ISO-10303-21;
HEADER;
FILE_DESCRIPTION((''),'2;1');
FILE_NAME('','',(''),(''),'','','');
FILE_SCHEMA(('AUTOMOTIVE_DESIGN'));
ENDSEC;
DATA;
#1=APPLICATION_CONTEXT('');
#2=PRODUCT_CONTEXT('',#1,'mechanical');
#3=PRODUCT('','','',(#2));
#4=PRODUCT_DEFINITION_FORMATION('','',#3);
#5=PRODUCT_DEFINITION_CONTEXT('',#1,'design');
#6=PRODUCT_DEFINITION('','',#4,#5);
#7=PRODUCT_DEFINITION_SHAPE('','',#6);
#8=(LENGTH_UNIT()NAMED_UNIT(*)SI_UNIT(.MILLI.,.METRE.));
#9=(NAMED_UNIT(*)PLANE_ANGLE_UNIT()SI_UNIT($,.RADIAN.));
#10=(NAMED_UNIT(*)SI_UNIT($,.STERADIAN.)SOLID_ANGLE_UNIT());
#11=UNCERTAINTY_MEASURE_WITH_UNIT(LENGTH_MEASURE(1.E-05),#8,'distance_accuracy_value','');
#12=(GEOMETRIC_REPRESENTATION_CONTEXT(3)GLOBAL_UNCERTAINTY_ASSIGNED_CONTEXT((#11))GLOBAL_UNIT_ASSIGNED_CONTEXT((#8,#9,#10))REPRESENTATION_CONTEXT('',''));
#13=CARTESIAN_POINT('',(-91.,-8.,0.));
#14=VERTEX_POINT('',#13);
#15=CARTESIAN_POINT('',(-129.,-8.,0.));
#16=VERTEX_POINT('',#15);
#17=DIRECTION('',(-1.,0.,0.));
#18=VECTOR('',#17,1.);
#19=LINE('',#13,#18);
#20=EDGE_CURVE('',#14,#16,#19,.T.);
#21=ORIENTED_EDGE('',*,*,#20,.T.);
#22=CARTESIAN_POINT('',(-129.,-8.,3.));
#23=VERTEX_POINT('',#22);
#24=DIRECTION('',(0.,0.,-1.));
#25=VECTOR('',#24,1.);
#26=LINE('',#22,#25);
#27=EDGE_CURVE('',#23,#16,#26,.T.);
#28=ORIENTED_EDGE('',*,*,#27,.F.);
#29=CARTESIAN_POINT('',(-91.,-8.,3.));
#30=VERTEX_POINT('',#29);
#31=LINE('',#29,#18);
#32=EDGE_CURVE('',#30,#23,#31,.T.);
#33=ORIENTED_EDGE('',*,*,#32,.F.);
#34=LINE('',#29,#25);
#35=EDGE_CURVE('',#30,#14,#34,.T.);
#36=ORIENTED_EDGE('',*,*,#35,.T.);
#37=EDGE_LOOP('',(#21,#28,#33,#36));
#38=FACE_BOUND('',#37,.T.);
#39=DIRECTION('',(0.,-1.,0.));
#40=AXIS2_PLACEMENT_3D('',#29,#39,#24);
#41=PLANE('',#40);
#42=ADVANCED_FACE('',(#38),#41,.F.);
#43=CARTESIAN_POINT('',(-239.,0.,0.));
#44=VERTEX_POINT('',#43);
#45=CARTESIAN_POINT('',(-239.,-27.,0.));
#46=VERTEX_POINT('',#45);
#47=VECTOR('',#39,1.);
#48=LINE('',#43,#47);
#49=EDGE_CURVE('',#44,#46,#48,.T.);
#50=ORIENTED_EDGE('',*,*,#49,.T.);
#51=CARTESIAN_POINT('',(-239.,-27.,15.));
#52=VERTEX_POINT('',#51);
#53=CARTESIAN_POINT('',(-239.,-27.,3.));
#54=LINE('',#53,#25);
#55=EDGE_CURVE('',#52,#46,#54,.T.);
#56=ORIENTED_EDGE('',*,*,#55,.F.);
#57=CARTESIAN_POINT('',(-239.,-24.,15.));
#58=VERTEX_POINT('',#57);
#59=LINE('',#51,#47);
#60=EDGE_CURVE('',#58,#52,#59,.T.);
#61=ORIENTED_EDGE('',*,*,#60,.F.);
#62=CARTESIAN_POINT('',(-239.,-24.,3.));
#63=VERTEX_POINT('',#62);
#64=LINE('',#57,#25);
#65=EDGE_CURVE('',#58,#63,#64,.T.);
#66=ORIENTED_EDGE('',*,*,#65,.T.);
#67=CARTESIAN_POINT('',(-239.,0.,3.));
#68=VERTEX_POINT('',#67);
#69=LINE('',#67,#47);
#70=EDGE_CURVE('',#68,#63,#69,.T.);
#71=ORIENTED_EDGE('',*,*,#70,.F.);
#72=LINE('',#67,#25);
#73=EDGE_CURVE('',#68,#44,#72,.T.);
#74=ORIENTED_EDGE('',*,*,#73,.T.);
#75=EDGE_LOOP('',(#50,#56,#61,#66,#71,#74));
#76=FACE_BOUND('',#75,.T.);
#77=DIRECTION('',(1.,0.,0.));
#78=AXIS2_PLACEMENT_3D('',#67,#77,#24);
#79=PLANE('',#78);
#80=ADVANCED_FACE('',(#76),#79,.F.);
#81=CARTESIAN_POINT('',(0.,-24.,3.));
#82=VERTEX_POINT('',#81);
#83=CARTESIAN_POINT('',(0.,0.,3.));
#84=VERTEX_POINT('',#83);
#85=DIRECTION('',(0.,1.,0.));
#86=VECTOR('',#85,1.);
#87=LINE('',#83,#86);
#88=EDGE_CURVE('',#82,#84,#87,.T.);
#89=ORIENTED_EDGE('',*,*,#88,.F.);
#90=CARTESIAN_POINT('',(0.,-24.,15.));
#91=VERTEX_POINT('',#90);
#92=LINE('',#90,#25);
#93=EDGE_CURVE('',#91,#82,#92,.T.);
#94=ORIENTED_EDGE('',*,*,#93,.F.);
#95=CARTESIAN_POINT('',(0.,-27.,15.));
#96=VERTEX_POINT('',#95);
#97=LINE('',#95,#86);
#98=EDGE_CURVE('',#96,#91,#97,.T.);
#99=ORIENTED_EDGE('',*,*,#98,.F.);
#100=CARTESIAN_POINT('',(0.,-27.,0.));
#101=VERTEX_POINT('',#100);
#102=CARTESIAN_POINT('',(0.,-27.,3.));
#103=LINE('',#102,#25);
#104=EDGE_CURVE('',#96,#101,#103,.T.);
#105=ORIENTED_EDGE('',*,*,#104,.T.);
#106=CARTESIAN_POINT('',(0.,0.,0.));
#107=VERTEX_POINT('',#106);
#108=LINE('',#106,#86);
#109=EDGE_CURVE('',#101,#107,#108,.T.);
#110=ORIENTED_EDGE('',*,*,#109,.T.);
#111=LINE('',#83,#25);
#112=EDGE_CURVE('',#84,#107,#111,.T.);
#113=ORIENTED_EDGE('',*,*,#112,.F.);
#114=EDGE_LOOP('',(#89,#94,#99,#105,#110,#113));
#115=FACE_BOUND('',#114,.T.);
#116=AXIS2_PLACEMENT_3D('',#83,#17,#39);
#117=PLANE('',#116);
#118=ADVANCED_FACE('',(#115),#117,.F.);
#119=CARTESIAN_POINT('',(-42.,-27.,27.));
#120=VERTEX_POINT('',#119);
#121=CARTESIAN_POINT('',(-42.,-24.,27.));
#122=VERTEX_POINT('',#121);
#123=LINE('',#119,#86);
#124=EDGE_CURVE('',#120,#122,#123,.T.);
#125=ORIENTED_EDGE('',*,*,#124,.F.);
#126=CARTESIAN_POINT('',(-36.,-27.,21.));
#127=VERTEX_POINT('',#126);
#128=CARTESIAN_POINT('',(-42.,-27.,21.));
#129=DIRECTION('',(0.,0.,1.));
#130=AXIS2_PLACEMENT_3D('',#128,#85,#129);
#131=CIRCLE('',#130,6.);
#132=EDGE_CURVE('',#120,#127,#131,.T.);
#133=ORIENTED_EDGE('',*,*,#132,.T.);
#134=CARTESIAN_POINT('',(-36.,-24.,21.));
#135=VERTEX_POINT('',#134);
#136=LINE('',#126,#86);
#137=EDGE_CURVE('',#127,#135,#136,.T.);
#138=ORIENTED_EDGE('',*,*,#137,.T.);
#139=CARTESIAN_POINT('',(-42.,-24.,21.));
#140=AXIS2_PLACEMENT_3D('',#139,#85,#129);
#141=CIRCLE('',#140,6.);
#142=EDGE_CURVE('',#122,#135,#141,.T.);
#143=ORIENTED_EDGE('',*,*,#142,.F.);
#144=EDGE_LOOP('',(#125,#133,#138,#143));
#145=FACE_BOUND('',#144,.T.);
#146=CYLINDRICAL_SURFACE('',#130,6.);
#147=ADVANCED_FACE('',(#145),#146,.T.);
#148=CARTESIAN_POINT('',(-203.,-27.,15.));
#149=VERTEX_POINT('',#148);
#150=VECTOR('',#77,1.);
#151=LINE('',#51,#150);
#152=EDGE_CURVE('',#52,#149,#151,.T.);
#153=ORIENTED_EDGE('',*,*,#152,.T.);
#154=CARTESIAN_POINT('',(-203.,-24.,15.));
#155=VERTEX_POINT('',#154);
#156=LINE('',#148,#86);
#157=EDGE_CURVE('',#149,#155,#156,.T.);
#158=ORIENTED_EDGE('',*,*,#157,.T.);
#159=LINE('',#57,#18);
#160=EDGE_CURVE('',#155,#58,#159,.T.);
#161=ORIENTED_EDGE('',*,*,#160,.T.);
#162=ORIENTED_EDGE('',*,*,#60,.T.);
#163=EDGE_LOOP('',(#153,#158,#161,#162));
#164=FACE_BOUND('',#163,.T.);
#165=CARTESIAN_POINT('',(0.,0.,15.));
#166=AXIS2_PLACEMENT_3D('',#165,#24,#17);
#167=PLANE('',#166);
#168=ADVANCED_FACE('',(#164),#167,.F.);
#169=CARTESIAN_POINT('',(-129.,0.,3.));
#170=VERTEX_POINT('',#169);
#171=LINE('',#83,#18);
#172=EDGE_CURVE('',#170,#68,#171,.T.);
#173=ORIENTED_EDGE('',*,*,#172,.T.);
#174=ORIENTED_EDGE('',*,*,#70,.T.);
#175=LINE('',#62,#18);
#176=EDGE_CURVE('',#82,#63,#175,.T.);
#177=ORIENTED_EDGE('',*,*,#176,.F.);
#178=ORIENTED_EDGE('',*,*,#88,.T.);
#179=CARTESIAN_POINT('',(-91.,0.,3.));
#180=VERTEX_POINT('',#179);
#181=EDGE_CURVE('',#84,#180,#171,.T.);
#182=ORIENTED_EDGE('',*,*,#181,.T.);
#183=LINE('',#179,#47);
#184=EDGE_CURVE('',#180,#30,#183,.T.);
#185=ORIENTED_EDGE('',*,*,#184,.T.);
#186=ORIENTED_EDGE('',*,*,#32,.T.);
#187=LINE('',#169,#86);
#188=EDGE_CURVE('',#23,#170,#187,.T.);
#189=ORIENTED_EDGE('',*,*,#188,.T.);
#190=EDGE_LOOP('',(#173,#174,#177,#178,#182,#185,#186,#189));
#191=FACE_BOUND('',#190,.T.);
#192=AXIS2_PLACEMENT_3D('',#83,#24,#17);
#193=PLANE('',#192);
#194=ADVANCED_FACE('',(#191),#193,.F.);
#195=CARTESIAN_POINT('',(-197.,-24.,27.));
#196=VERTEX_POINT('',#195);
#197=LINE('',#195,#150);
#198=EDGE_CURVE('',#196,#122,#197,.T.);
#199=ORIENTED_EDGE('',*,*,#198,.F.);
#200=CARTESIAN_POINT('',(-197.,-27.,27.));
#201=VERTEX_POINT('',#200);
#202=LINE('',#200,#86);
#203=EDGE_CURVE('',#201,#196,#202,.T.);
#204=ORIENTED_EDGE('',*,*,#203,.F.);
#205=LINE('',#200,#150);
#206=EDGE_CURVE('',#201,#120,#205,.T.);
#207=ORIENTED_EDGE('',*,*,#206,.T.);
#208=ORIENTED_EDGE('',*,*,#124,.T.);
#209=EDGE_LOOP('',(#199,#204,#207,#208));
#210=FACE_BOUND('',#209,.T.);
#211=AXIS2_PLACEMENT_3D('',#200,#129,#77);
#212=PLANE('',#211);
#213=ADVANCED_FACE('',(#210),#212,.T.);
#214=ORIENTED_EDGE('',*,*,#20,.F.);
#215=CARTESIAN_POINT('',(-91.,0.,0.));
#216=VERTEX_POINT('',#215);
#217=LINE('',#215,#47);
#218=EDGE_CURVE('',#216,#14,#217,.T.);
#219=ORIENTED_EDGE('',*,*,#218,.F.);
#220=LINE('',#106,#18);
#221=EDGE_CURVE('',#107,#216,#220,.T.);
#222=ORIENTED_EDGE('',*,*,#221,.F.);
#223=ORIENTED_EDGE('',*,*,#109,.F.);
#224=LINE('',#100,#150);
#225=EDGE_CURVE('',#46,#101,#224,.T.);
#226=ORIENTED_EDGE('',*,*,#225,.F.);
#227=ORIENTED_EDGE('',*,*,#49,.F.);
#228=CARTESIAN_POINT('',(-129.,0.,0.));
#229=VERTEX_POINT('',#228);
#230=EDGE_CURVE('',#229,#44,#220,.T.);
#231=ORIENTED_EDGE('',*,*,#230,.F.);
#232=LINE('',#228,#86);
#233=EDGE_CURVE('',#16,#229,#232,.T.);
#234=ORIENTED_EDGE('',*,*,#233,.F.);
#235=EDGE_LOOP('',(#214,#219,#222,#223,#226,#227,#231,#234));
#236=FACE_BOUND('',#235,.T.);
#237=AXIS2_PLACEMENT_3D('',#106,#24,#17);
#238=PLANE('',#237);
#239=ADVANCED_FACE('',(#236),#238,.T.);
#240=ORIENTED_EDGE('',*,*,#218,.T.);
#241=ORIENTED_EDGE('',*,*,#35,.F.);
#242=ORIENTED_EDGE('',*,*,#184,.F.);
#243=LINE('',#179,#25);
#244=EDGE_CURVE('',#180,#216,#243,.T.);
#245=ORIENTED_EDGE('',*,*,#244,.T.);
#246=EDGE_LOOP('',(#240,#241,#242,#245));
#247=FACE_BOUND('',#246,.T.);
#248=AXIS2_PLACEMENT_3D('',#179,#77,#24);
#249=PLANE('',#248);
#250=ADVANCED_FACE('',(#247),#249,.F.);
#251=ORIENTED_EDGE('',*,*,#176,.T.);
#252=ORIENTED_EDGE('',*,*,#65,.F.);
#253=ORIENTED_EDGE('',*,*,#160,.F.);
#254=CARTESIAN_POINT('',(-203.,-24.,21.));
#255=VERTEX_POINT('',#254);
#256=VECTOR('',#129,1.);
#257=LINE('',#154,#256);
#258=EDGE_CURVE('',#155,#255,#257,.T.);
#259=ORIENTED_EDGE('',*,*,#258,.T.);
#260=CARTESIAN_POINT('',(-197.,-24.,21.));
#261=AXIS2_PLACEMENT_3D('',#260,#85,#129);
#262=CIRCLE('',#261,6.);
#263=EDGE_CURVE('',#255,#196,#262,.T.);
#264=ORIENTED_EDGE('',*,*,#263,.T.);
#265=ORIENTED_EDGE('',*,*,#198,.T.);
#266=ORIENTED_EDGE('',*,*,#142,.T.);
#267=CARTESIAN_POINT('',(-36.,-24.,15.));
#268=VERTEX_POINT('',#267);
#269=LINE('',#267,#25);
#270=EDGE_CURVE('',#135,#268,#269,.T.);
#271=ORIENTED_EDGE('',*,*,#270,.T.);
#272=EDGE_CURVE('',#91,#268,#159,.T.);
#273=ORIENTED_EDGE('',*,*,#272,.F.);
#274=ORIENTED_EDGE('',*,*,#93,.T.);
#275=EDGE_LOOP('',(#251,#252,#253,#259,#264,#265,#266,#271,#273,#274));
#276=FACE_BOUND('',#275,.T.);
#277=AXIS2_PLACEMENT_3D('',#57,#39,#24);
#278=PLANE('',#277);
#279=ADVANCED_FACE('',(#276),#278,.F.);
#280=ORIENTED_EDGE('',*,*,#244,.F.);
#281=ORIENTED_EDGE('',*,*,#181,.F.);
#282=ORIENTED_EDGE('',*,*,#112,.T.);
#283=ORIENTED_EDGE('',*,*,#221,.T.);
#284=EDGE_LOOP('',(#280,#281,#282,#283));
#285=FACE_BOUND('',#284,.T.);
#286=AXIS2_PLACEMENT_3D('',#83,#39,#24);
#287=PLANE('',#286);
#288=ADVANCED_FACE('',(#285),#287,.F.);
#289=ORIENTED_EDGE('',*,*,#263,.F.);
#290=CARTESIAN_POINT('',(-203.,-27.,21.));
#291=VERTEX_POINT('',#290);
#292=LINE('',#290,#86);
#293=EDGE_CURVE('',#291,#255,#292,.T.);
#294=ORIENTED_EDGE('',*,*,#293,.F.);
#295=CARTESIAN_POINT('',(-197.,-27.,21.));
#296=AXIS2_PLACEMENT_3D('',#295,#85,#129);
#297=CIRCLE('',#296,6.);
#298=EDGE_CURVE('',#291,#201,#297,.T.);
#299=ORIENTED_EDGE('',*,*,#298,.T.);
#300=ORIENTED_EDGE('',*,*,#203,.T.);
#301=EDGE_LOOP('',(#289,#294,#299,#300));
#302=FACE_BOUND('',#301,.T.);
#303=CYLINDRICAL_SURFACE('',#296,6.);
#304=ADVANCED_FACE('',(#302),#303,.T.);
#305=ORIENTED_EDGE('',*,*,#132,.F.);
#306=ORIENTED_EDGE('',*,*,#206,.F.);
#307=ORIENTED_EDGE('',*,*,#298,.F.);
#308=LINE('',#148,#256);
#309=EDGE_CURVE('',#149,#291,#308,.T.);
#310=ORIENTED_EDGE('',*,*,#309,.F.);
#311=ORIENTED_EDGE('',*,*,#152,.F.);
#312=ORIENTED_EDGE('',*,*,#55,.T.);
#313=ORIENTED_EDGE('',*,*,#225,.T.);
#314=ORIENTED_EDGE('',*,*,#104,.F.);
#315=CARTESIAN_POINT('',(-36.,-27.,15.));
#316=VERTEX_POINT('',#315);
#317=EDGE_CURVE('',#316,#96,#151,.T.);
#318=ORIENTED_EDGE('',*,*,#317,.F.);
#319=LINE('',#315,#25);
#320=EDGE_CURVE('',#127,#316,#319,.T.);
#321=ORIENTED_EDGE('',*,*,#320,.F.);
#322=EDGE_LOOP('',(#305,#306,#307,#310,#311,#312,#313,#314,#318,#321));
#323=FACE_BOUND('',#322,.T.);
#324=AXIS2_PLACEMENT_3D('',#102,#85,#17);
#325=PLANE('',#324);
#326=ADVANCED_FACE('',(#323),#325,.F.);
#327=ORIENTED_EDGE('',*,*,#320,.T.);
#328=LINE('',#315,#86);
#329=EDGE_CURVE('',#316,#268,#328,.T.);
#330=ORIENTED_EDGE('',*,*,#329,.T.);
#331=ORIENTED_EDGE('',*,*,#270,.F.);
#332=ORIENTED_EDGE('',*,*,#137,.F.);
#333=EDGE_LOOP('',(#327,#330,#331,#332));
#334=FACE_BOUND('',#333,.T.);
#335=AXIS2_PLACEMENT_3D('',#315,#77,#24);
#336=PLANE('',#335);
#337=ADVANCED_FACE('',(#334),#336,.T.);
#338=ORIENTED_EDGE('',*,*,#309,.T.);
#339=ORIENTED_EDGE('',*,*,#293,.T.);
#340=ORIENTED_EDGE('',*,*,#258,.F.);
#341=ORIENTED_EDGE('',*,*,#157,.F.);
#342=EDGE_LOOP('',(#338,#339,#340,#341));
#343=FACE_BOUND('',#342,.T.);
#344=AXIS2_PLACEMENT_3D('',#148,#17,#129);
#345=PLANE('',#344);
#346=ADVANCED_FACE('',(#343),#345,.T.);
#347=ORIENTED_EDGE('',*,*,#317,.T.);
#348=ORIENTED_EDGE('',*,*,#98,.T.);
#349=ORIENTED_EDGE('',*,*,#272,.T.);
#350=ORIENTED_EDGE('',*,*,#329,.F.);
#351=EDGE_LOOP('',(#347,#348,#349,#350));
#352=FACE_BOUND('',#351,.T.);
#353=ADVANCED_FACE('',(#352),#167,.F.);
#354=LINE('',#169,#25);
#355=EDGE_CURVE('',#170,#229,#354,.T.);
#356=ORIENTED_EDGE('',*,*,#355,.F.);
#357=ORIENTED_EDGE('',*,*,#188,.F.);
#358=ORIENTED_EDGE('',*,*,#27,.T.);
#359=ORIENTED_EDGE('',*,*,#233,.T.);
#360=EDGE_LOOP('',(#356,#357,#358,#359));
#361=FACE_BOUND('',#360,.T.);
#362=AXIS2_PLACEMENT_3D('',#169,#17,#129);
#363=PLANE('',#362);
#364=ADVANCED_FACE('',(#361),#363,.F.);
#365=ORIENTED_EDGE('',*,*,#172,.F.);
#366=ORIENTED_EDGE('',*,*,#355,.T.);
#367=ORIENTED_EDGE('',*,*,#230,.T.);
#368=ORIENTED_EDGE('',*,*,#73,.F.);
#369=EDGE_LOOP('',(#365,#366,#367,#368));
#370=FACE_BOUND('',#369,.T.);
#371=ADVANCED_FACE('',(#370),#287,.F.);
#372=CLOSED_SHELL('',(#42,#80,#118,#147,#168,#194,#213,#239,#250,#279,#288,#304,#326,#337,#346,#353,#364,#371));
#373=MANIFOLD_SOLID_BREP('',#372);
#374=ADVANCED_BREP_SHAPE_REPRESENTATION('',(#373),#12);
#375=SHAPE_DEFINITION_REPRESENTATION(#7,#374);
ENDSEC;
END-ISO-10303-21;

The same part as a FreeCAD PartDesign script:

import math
import FreeCAD as App
import Part
import Sketcher

V = App.Vector
Q = App.Units.Quantity

doc = App.newDocument("Part")
body = doc.addObject("PartDesign::Body", "Body")

sketch1 = doc.addObject("Sketcher::SketchObject", "Sketch")
body.addObject(sketch1)
sketch1.AttachmentSupport = (doc.XY_Plane, [""])
sketch1.MapMode = "FlatFace"
sketch1.addGeometry([
    Part.LineSegment(V(-239, 0, 0), V(-239, -27, 0)),
    Part.LineSegment(V(-239, -27, 0), V(0, -27, 0)),
    Part.LineSegment(V(0, -27, 0), V(0, 0, 0)),
    Part.LineSegment(V(0, 0, 0), V(-239, 0, 0)),
], False)
sketch1.addConstraint([
    Sketcher.Constraint("Coincident", 0, 2, 1, 1),
    Sketcher.Constraint("Coincident", 1, 2, 2, 1),
    Sketcher.Constraint("Coincident", 2, 2, 3, 1),
    Sketcher.Constraint("Coincident", 3, 2, 0, 1),
    Sketcher.Constraint("Vertical", 0),
    Sketcher.Constraint("Horizontal", 1),
    Sketcher.Constraint("Vertical", 2),
    Sketcher.Constraint("Horizontal", 3),
    Sketcher.Constraint("Coincident", 2, 2, -1, 1),
    Sketcher.Constraint("DistanceX", 1, 1, 1, 2, Q("239 mm")),
    Sketcher.Constraint("DistanceY", 0, 2, 0, 1, Q("27 mm")),
])
pad1 = doc.addObject("PartDesign::Pad", "Pad")
body.addObject(pad1)
pad1.Profile = sketch1
pad1.Length = 3

sketch2 = doc.addObject("Sketcher::SketchObject", "Sketch001")
body.addObject(sketch2)
sketch2.AttachmentSupport = (doc.XY_Plane, [""])
sketch2.MapMode = "FlatFace"
sketch2.AttachmentOffset = App.Placement(V(0, 0, 3), App.Rotation())
sketch2.addGeometry([
    Part.LineSegment(V(-239, -24, 0), V(-239, -27, 0)),
    Part.LineSegment(V(-239, -27, 0), V(0, -27, 0)),
    Part.LineSegment(V(0, -27, 0), V(0, -24, 0)),
    Part.LineSegment(V(0, -24, 0), V(-239, -24, 0)),
], False)
sketch2.addConstraint([
    Sketcher.Constraint("Coincident", 0, 2, 1, 1),
    Sketcher.Constraint("Coincident", 1, 2, 2, 1),
    Sketcher.Constraint("Coincident", 2, 2, 3, 1),
    Sketcher.Constraint("Coincident", 3, 2, 0, 1),
    Sketcher.Constraint("Vertical", 0),
    Sketcher.Constraint("Horizontal", 1),
    Sketcher.Constraint("Vertical", 2),
    Sketcher.Constraint("Horizontal", 3),
    Sketcher.Constraint("PointOnObject", 1, 2, -2),
    Sketcher.Constraint("DistanceX", 1, 1, 1, 2, Q("239 mm")),
    Sketcher.Constraint("DistanceY", 0, 2, 0, 1, Q("3 mm")),
    Sketcher.Constraint("DistanceY", 0, 2, -1, 1, Q("27 mm")),
])
pad2 = doc.addObject("PartDesign::Pad", "Pad001")
body.addObject(pad2)
pad2.Profile = sketch2
pad2.Length = 12

sketch3 = doc.addObject("Sketcher::SketchObject", "Sketch002")
body.addObject(sketch3)
sketch3.AttachmentSupport = (doc.XZ_Plane, [""])
sketch3.MapMode = "FlatFace"
sketch3.AttachmentOffset = App.Placement(V(0, 0, 24), App.Rotation())
sketch3.addGeometry([
    Part.LineSegment(V(-36, 15, 0), V(-203, 15, 0)),
    Part.LineSegment(V(-203, 15, 0), V(-203, 21, 0)),
    Part.ArcOfCircle(Part.Circle(V(-197, 21, 0), V(0, 0, 1), 6), math.radians(90), math.radians(180)),
    Part.LineSegment(V(-197, 27, 0), V(-42, 27, 0)),
    Part.ArcOfCircle(Part.Circle(V(-42, 21, 0), V(0, 0, 1), 6), math.radians(0), math.radians(90)),
    Part.LineSegment(V(-36, 21, 0), V(-36, 15, 0)),
], False)
sketch3.addConstraint([
    Sketcher.Constraint("Coincident", 0, 2, 1, 1),
    Sketcher.Constraint("Tangent", 1, 2, 2, 2),
    Sketcher.Constraint("Tangent", 2, 1, 3, 1),
    Sketcher.Constraint("Tangent", 3, 2, 4, 2),
    Sketcher.Constraint("Tangent", 4, 1, 5, 1),
    Sketcher.Constraint("Coincident", 5, 2, 0, 1),
    Sketcher.Constraint("Horizontal", 0),
    Sketcher.Constraint("Vertical", 1),
    Sketcher.Constraint("Horizontal", 3),
    Sketcher.Constraint("Vertical", 5),
    Sketcher.Constraint("Equal", 2, 4),
    Sketcher.Constraint("Radius", 2, Q("6 mm")),
    Sketcher.Constraint("DistanceX", 0, 2, 0, 1, Q("167 mm")),
    Sketcher.Constraint("DistanceY", 1, 1, 1, 2, Q("6 mm")),
    Sketcher.Constraint("DistanceX", 2, 3, -1, 1, Q("197 mm")),
    Sketcher.Constraint("DistanceY", -1, 1, 2, 3, Q("21 mm")),
])
pad3 = doc.addObject("PartDesign::Pad", "Pad002")
body.addObject(pad3)
pad3.Profile = sketch3
pad3.Length = 3

sketch4 = doc.addObject("Sketcher::SketchObject", "Sketch003")
body.addObject(sketch4)
sketch4.AttachmentSupport = (doc.XY_Plane, [""])
sketch4.MapMode = "FlatFace"
sketch4.addGeometry([
    Part.LineSegment(V(-91, 0, 0), V(-91, -8, 0)),
    Part.LineSegment(V(-91, -8, 0), V(-129, -8, 0)),
    Part.LineSegment(V(-129, -8, 0), V(-129, 0, 0)),
    Part.LineSegment(V(-129, 0, 0), V(-91, 0, 0)),
], False)
sketch4.addConstraint([
    Sketcher.Constraint("Coincident", 0, 2, 1, 1),
    Sketcher.Constraint("Coincident", 1, 2, 2, 1),
    Sketcher.Constraint("Coincident", 2, 2, 3, 1),
    Sketcher.Constraint("Coincident", 3, 2, 0, 1),
    Sketcher.Constraint("Vertical", 0),
    Sketcher.Constraint("Horizontal", 1),
    Sketcher.Constraint("Vertical", 2),
    Sketcher.Constraint("Horizontal", 3),
    Sketcher.Constraint("PointOnObject", 2, 2, -1),
    Sketcher.Constraint("DistanceX", 1, 2, 1, 1, Q("38 mm")),
    Sketcher.Constraint("DistanceY", 0, 2, 0, 1, Q("8 mm")),
    Sketcher.Constraint("DistanceX", 0, 2, -1, 1, Q("91 mm")),
])
pocket1 = doc.addObject("PartDesign::Pocket", "Pocket")
body.addObject(pocket1)
pocket1.Profile = sketch4
pocket1.Length = 3
pocket1.Reversed = True

doc.recompute()
